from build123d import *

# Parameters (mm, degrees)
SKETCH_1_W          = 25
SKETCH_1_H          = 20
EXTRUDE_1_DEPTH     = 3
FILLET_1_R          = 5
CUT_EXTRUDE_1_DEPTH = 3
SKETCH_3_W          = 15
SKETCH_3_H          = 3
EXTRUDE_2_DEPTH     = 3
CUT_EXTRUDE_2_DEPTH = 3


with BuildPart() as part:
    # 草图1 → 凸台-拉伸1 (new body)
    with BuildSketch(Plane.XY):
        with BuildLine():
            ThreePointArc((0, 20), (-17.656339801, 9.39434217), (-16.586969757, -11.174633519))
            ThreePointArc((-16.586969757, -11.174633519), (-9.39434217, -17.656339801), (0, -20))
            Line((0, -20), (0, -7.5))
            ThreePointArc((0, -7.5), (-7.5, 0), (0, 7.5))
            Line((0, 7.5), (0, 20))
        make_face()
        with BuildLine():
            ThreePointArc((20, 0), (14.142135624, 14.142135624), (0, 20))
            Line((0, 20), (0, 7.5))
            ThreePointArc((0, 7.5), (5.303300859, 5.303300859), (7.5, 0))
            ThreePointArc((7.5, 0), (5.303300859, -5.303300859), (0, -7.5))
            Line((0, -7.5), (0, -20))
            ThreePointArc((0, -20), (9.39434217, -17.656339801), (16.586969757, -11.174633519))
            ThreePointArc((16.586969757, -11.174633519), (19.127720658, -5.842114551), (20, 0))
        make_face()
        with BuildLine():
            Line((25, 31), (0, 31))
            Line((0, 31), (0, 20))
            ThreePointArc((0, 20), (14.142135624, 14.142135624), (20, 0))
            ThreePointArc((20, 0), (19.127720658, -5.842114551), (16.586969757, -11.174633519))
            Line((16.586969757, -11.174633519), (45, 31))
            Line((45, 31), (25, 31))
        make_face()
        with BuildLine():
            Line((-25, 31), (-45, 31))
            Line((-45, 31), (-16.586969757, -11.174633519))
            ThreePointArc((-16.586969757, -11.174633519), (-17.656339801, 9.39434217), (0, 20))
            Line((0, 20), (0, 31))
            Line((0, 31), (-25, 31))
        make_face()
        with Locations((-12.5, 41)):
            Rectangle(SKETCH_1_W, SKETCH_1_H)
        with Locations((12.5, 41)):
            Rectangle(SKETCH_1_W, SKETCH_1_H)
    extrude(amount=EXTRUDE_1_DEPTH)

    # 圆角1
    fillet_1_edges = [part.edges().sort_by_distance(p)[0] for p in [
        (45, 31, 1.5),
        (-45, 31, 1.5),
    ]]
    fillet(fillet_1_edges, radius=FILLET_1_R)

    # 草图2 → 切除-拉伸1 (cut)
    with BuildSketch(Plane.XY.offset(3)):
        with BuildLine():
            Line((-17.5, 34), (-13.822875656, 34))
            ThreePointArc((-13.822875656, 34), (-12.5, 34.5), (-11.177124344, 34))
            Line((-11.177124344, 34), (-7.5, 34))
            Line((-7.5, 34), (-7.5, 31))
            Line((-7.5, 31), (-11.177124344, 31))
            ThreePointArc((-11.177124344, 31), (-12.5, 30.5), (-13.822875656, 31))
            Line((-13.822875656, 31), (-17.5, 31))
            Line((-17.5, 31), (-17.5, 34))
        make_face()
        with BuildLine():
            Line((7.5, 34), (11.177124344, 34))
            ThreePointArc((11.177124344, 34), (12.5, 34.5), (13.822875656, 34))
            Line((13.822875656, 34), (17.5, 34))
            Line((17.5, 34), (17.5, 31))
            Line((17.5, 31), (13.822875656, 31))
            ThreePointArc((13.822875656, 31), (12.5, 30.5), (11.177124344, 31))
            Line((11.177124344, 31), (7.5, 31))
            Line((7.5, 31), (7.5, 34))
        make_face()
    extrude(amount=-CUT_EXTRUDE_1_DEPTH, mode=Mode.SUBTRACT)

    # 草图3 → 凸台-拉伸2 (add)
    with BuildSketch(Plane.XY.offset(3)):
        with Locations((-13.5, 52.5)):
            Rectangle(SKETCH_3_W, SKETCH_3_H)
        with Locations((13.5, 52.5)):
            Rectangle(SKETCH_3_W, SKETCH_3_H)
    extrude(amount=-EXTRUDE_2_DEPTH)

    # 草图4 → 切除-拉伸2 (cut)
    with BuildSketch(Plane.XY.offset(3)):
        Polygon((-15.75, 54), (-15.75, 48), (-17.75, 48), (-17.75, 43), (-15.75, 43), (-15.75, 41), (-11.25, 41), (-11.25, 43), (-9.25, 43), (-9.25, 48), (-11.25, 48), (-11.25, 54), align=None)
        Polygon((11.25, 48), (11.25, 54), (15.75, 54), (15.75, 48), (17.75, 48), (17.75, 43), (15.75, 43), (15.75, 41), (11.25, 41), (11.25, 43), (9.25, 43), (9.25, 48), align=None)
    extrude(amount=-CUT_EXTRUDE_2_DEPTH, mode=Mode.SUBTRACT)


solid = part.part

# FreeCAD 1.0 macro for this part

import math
import FreeCAD as App
import Part
import Sketcher
from FreeCAD import Vector
Q = App.Units.Quantity


def edges_at(feature, points):
    """Names of the edges that pass closest to the given points."""
    edges = feature.Shape.Edges
    near = lambda p: min(range(len(edges)), key=lambda i: edges[i].distToShape(Part.Vertex(*p))[0])
    return sorted({f"Edge{near(p) + 1}" for p in points})


def add_polygon(sketch, points):
    """Adds a closed chain of lines whose ends are joined by coincident constraints."""
    first, n = sketch.GeometryCount, len(points)
    for a, b in zip(points, points[1:] + points[:1]):
        sketch.addGeometry(Part.LineSegment(App.Vector(*a, 0), App.Vector(*b, 0)), False)
    for i in range(n):
        sketch.addConstraint(Sketcher.Constraint("Coincident", first + i, 2, first + (i + 1) % n, 1))

doc = App.newDocument("Part")
body = doc.addObject("PartDesign::Body", "Body")

# Sketch on XY plane
sketch1 = body.newObject("Sketcher::SketchObject", "Sketch")
sketch1.AttachmentSupport = (doc.getObject("XY_Plane"), [""])
sketch1.MapMode = "FlatFace"
sketch1.addGeometry(Part.ArcOfCircle(Part.Circle(Vector(0, 0, 0), Vector(0, 0, 1), 20), math.radians(-146.03187), math.radians(-90)), False)
sketch1.addGeometry(Part.ArcOfCircle(Part.Circle(Vector(0, 0, 0), Vector(0, 0, 1), 20), math.radians(-90), math.radians(-33.96813)), False)
sketch1.addGeometry(Part.LineSegment(Vector(16.58697, -11.174634, 0), Vector(45, 31, 0)), False)
sketch1.addGeometry(Part.LineSegment(Vector(45, 31, 0), Vector(25, 31, 0)), False)
sketch1.addGeometry(Part.LineSegment(Vector(25, 31, 0), Vector(25, 51, 0)), False)
sketch1.addGeometry(Part.LineSegment(Vector(25, 51, 0), Vector(-25, 51, 0)), False)
sketch1.addGeometry(Part.LineSegment(Vector(-25, 51, 0), Vector(-25, 31, 0)), False)
sketch1.addGeometry(Part.LineSegment(Vector(-25, 31, 0), Vector(-45, 31, 0)), False)
sketch1.addGeometry(Part.LineSegment(Vector(-45, 31, 0), Vector(-16.58697, -11.174634, 0)), False)
sketch1.addGeometry(Part.ArcOfCircle(Part.Circle(Vector(0, 0, 0), Vector(0, 0, 1), 7.5), math.radians(90), math.radians(270)), False)
sketch1.addGeometry(Part.ArcOfCircle(Part.Circle(Vector(0, 0, 0), Vector(0, 0, 1), 7.5), math.radians(0), math.radians(90)), False)
sketch1.addGeometry(Part.ArcOfCircle(Part.Circle(Vector(0, 0, 0), Vector(0, 0, 1), 7.5), math.radians(-90), math.radians(0)), False)
sketch1.addConstraint(Sketcher.Constraint("Tangent", 0, 2, 1, 1))
sketch1.addConstraint(Sketcher.Constraint("Tangent", 1, 2, 2, 1))
sketch1.addConstraint(Sketcher.Constraint("Coincident", 2, 2, 3, 1))
sketch1.addConstraint(Sketcher.Constraint("Coincident", 3, 2, 4, 1))
sketch1.addConstraint(Sketcher.Constraint("Coincident", 4, 2, 5, 1))
sketch1.addConstraint(Sketcher.Constraint("Coincident", 5, 2, 6, 1))
sketch1.addConstraint(Sketcher.Constraint("Coincident", 6, 2, 7, 1))
sketch1.addConstraint(Sketcher.Constraint("Coincident", 7, 2, 8, 1))
sketch1.addConstraint(Sketcher.Constraint("Tangent", 8, 2, 0, 1))
sketch1.addConstraint(Sketcher.Constraint("Tangent", 9, 1, 10, 2))
sketch1.addConstraint(Sketcher.Constraint("Tangent", 10, 1, 11, 2))
sketch1.addConstraint(Sketcher.Constraint("Tangent", 11, 1, 9, 2))
sketch1.addConstraint(Sketcher.Constraint("Horizontal", 3))
sketch1.addConstraint(Sketcher.Constraint("Vertical", 4))
sketch1.addConstraint(Sketcher.Constraint("Horizontal", 5))
sketch1.addConstraint(Sketcher.Constraint("Vertical", 6))
sketch1.addConstraint(Sketcher.Constraint("Horizontal", 7))
sketch1.addConstraint(Sketcher.Constraint("Coincident", 0, 3, -1, 1))
sketch1.addConstraint(Sketcher.Constraint("Coincident", 9, 3, -1, 1))
sketch1.addConstraint(Sketcher.Constraint("Equal", 0, 1))
sketch1.addConstraint(Sketcher.Constraint("Symmetric", 3, 2, 6, 2, -2))
sketch1.addConstraint(Sketcher.Constraint("PointOnObject", 0, 2, -2))
sketch1.addConstraint(Sketcher.Constraint("PointOnObject", 9, 1, -2))
sketch1.addConstraint(Sketcher.Constraint("PointOnObject", 10, 1, -1))
sketch1.addConstraint(Sketcher.Constraint("PointOnObject", 11, 1, -2))
sketch1.addConstraint(Sketcher.Constraint("Horizontal", 1, 2, 8, 2))
sketch1.addConstraint(Sketcher.Constraint("Equal", 7, 4))
sketch1.addConstraint(Sketcher.Constraint("Radius", 0, Q("20 mm")))
sketch1.addConstraint(Sketcher.Constraint("Radius", 9, Q("7.5 mm")))
sketch1.addConstraint(Sketcher.Constraint("DistanceX", 3, 2, 3, 1, Q("20 mm")))
sketch1.addConstraint(Sketcher.Constraint("DistanceX", 5, 2, 5, 1, Q("50 mm")))
sketch1.addConstraint(Sketcher.Constraint("DistanceY", -1, 1, 2, 2, Q("31 mm")))
pad1 = body.newObject("PartDesign::Pad", "Pad")
pad1.Profile = sketch1
pad1.Length = 3
doc.recompute()

fillet = body.newObject("PartDesign::Fillet", "Fillet")
fillet.Base = (pad1, edges_at(pad1, [(45, 31, 1.5), (-45, 31, 1.5)]))
fillet.Radius = 5

# Sketch on XY plane
sketch2 = body.newObject("Sketcher::SketchObject", "Sketch001")
sketch2.AttachmentSupport = (doc.getObject("XY_Plane"), [""])
sketch2.MapMode = "FlatFace"
sketch2.AttachmentOffset = App.Placement(Vector(0, 0, 3), App.Rotation())
sketch2.addGeometry(Part.LineSegment(Vector(-13.822876, 34, 0), Vector(-17.5, 34, 0)), False)
sketch2.addGeometry(Part.LineSegment(Vector(-17.5, 34, 0), Vector(-17.5, 31, 0)), False)
sketch2.addGeometry(Part.LineSegment(Vector(-17.5, 31, 0), Vector(-13.822876, 31, 0)), False)
sketch2.addGeometry(Part.ArcOfCircle(Part.Circle(Vector(-12.5, 32.5, 0), Vector(0, 0, 1), 2), math.radians(-131.409622), math.radians(-48.590378)), False)
sketch2.addGeometry(Part.LineSegment(Vector(-11.177124, 31, 0), Vector(-7.5, 31, 0)), False)
sketch2.addGeometry(Part.LineSegment(Vector(-7.5, 31, 0), Vector(-7.5, 34, 0)), False)
sketch2.addGeometry(Part.LineSegment(Vector(-7.5, 34, 0), Vector(-11.177124, 34, 0)), False)
sketch2.addGeometry(Part.ArcOfCircle(Part.Circle(Vector(-12.5, 32.5, 0), Vector(0, 0, 1), 2), math.radians(48.590378), math.radians(131.409622)), False)
sketch2.addGeometry(Part.LineSegment(Vector(11.177124, 34, 0), Vector(7.5, 34, 0)), False)
sketch2.addGeometry(Part.LineSegment(Vector(7.5, 34, 0), Vector(7.5, 31, 0)), False)
sketch2.addGeometry(Part.LineSegment(Vector(7.5, 31, 0), Vector(11.177124, 31, 0)), False)
sketch2.addGeometry(Part.ArcOfCircle(Part.Circle(Vector(12.5, 32.5, 0), Vector(0, 0, 1), 2), math.radians(-131.409622), math.radians(-48.590378)), False)
sketch2.addGeometry(Part.LineSegment(Vector(13.822876, 31, 0), Vector(17.5, 31, 0)), False)
sketch2.addGeometry(Part.LineSegment(Vector(17.5, 31, 0), Vector(17.5, 34, 0)), False)
sketch2.addGeometry(Part.LineSegment(Vector(17.5, 34, 0), Vector(13.822876, 34, 0)), False)
sketch2.addGeometry(Part.ArcOfCircle(Part.Circle(Vector(12.5, 32.5, 0), Vector(0, 0, 1), 2), math.radians(48.590378), math.radians(131.409622)), False)
sketch2.addConstraint(Sketcher.Constraint("Coincident", 0, 2, 1, 1))
sketch2.addConstraint(Sketcher.Constraint("Coincident", 1, 2, 2, 1))
sketch2.addConstraint(Sketcher.Constraint("Coincident", 2, 2, 3, 1))
sketch2.addConstraint(Sketcher.Constraint("Coincident", 3, 2, 4, 1))
sketch2.addConstraint(Sketcher.Constraint("Coincident", 4, 2, 5, 1))
sketch2.addConstraint(Sketcher.Constraint("Coincident", 5, 2, 6, 1))
sketch2.addConstraint(Sketcher.Constraint("Coincident", 6, 2, 7, 1))
sketch2.addConstraint(Sketcher.Constraint("Coincident", 7, 2, 0, 1))
sketch2.addConstraint(Sketcher.Constraint("Coincident", 8, 2, 9, 1))
sketch2.addConstraint(Sketcher.Constraint("Coincident", 9, 2, 10, 1))
sketch2.addConstraint(Sketcher.Constraint("Coincident", 10, 2, 11, 1))
sketch2.addConstraint(Sketcher.Constraint("Coincident", 11, 2, 12, 1))
sketch2.addConstraint(Sketcher.Constraint("Coincident", 12, 2, 13, 1))
sketch2.addConstraint(Sketcher.Constraint("Coincident", 13, 2, 14, 1))
sketch2.addConstraint(Sketcher.Constraint("Coincident", 14, 2, 15, 1))
sketch2.addConstraint(Sketcher.Constraint("Coincident", 15, 2, 8, 1))
sketch2.addConstraint(Sketcher.Constraint("Horizontal", 0))
sketch2.addConstraint(Sketcher.Constraint("Vertical", 1))
sketch2.addConstraint(Sketcher.Constraint("Horizontal", 2))
sketch2.addConstraint(Sketcher.Constraint("Horizontal", 4))
sketch2.addConstraint(Sketcher.Constraint("Vertical", 5))
sketch2.addConstraint(Sketcher.Constraint("Horizontal", 6))
sketch2.addConstraint(Sketcher.Constraint("Horizontal", 8))
sketch2.addConstraint(Sketcher.Constraint("Vertical", 9))
sketch2.addConstraint(Sketcher.Constraint("Horizontal", 10))
sketch2.addConstraint(Sketcher.Constraint("Horizontal", 12))
sketch2.addConstraint(Sketcher.Constraint("Vertical", 13))
sketch2.addConstraint(Sketcher.Constraint("Horizontal", 14))
sketch2.addConstraint(Sketcher.Constraint("Coincident", 7, 3, 3, 3))
sketch2.addConstraint(Sketcher.Constraint("Coincident", 15, 3, 11, 3))
sketch2.addConstraint(Sketcher.Constraint("Equal", 3, 7))
sketch2.addConstraint(Sketcher.Constraint("Equal", 7, 11))
sketch2.addConstraint(Sketcher.Constraint("Equal", 11, 15))
sketch2.addConstraint(Sketcher.Constraint("Symmetric", 3, 3, 11, 3, -2))
sketch2.addConstraint(Sketcher.Constraint("Symmetric", 5, 2, 8, 2, -2))
sketch2.addConstraint(Sketcher.Constraint("Symmetric", 1, 2, 12, 2, -2))
sketch2.addConstraint(Sketcher.Constraint("Horizontal", 2, 2, 3, 2))
sketch2.addConstraint(Sketcher.Constraint("Horizontal", 0, 2, 5, 2))
sketch2.addConstraint(Sketcher.Constraint("Horizontal", 4, 2, 9, 2))
sketch2.addConstraint(Sketcher.Constraint("Horizontal", 8, 2, 13, 2))
sketch2.addConstraint(Sketcher.Constraint("Vertical", 3, 2, 6, 2))
sketch2.addConstraint(Sketcher.Constraint("Equal", 2, 4))
sketch2.addConstraint(Sketcher.Constraint("Radius", 3, Q("2 mm")))
sketch2.addConstraint(Sketcher.Constraint("DistanceY", 1, 2, 1, 1, Q("3 mm")))
sketch2.addConstraint(Sketcher.Constraint("DistanceY", -1, 1, 0, 2, Q("34 mm")))
sketch2.addConstraint(Sketcher.Constraint("DistanceX", 3, 3, 11, 3, Q("25 mm")))
sketch2.addConstraint(Sketcher.Constraint("DistanceX", 0, 2, 3, 3, Q("5 mm")))
pocket1 = body.newObject("PartDesign::Pocket", "Pocket")
pocket1.Profile = sketch2
pocket1.Length = 3

# Sketch on XY plane
sketch3 = body.newObject("Sketcher::SketchObject", "Sketch002")
sketch3.AttachmentSupport = (doc.getObject("XY_Plane"), [""])
sketch3.MapMode = "FlatFace"
sketch3.AttachmentOffset = App.Placement(Vector(0, 0, 3), App.Rotation())
add_polygon(sketch3, [(-21, 54), (-21, 51), (-6, 51), (-6, 54)])  # lines 0-3
add_polygon(sketch3, [(6, 54), (6, 51), (21, 51), (21, 54)])  # lines 4-7
sketch3.addConstraint(Sketcher.Constraint("Vertical", 0))
sketch3.addConstraint(Sketcher.Constraint("Horizontal", 1))
sketch3.addConstraint(Sketcher.Constraint("Vertical", 2))
sketch3.addConstraint(Sketcher.Constraint("Horizontal", 3))
sketch3.addConstraint(Sketcher.Constraint("Vertical", 4))
sketch3.addConstraint(Sketcher.Constraint("Horizontal", 5))
sketch3.addConstraint(Sketcher.Constraint("Vertical", 6))
sketch3.addConstraint(Sketcher.Constraint("Horizontal", 7))
sketch3.addConstraint(Sketcher.Constraint("Symmetric", 1, 2, 4, 2, -2))
sketch3.addConstraint(Sketcher.Constraint("Symmetric", 3, 2, 6, 2, -2))
sketch3.addConstraint(Sketcher.Constraint("DistanceX", 1, 1, 1, 2, Q("15 mm")))
sketch3.addConstraint(Sketcher.Constraint("DistanceY", 0, 2, 0, 1, Q("3 mm")))
sketch3.addConstraint(Sketcher.Constraint("DistanceX", 0, 2, -1, 1, Q("21 mm")))
sketch3.addConstraint(Sketcher.Constraint("DistanceY", -1, 1, 0, 2, Q("51 mm")))
pad2 = body.newObject("PartDesign::Pad", "Pad001")
pad2.Profile = sketch3
pad2.Length = 3
pad2.Reversed = True

# Sketch on XY plane
sketch4 = body.newObject("Sketcher::SketchObject", "Sketch003")
sketch4.AttachmentSupport = (doc.getObject("XY_Plane"), [""])
sketch4.MapMode = "FlatFace"
sketch4.AttachmentOffset = App.Placement(Vector(0, 0, 3), App.Rotation())
add_polygon(sketch4, [(-15.75, 54), (-15.75, 48), (-17.75, 48), (-17.75, 43), (-15.75, 43), (-15.75, 41), (-11.25, 41), (-11.25, 43), (-9.25, 43), (-9.25, 48), (-11.25, 48), (-11.25, 54)])  # lines 0-11
add_polygon(sketch4, [(11.25, 54), (11.25, 48), (9.25, 48), (9.25, 43), (11.25, 43), (11.25, 41), (15.75, 41), (15.75, 43), (17.75, 43), (17.75, 48), (15.75, 48), (15.75, 54)])  # lines 12-23
sketch4.addConstraint(Sketcher.Constraint("Vertical", 0))
sketch4.addConstraint(Sketcher.Constraint("Horizontal", 1))
sketch4.addConstraint(Sketcher.Constraint("Vertical", 2))
sketch4.addConstraint(Sketcher.Constraint("Horizontal", 3))
sketch4.addConstraint(Sketcher.Constraint("Vertical", 4))
sketch4.addConstraint(Sketcher.Constraint("Horizontal", 5))
sketch4.addConstraint(Sketcher.Constraint("Vertical", 6))
sketch4.addConstraint(Sketcher.Constraint("Horizontal", 7))
sketch4.addConstraint(Sketcher.Constraint("Vertical", 8))
sketch4.addConstraint(Sketcher.Constraint("Horizontal", 9))
sketch4.addConstraint(Sketcher.Constraint("Vertical", 10))
sketch4.addConstraint(Sketcher.Constraint("Horizontal", 11))
sketch4.addConstraint(Sketcher.Constraint("Vertical", 12))
sketch4.addConstraint(Sketcher.Constraint("Horizontal", 13))
sketch4.addConstraint(Sketcher.Constraint("Vertical", 14))
sketch4.addConstraint(Sketcher.Constraint("Horizontal", 15))
sketch4.addConstraint(Sketcher.Constraint("Vertical", 16))
sketch4.addConstraint(Sketcher.Constraint("Horizontal", 17))
sketch4.addConstraint(Sketcher.Constraint("Vertical", 18))
sketch4.addConstraint(Sketcher.Constraint("Horizontal", 19))
sketch4.addConstraint(Sketcher.Constraint("Vertical", 20))
sketch4.addConstraint(Sketcher.Constraint("Horizontal", 21))
sketch4.addConstraint(Sketcher.Constraint("Vertical", 22))
sketch4.addConstraint(Sketcher.Constraint("Horizontal", 23))
sketch4.addConstraint(Sketcher.Constraint("Symmetric", 9, 2, 12, 2, -2))
sketch4.addConstraint(Sketcher.Constraint("Symmetric", 7, 2, 14, 2, -2))
sketch4.addConstraint(Sketcher.Constraint("Symmetric", 5, 2, 16, 2, -2))
sketch4.addConstraint(Sketcher.Constraint("Symmetric", 3, 2, 18, 2, -2))
sketch4.addConstraint(Sketcher.Constraint("Symmetric", 1, 2, 20, 2, -2))
sketch4.addConstraint(Sketcher.Constraint("Symmetric", 11, 2, 22, 2, -2))
sketch4.addConstraint(Sketcher.Constraint("Horizontal", 3, 2, 6, 2))
sketch4.addConstraint(Sketcher.Constraint("Horizontal", 1, 2, 8, 2))
sketch4.addConstraint(Sketcher.Constraint("Vertical", 0, 2, 3, 2))
sketch4.addConstraint(Sketcher.Constraint("Vertical", 6, 2, 9, 2))
sketch4.addConstraint(Sketcher.Constraint("Equal", 3, 7))
sketch4.addConstraint(Sketcher.Constraint("Equal", 21, 4))
sketch4.addConstraint(Sketcher.Constraint("DistanceX", 1, 2, 1, 1, Q("2 mm")))
sketch4.addConstraint(Sketcher.Constraint("DistanceY", 0, 2, 0, 1, Q("6 mm")))
sketch4.addConstraint(Sketcher.Constraint("DistanceY", 2, 2, 2, 1, Q("5 mm")))
sketch4.addConstraint(Sketcher.Constraint("DistanceX", 5, 1, 5, 2, Q("4.5 mm")))
sketch4.addConstraint(Sketcher.Constraint("DistanceY", -1, 1, 0, 2, Q("48 mm")))
sketch4.addConstraint(Sketcher.Constraint("DistanceX", 8, 2, 12, 2, Q("20.5 mm")))
pocket2 = body.newObject("PartDesign::Pocket", "Pocket001")
pocket2.Profile = sketch4
pocket2.Length = 3

doc.recompute()
